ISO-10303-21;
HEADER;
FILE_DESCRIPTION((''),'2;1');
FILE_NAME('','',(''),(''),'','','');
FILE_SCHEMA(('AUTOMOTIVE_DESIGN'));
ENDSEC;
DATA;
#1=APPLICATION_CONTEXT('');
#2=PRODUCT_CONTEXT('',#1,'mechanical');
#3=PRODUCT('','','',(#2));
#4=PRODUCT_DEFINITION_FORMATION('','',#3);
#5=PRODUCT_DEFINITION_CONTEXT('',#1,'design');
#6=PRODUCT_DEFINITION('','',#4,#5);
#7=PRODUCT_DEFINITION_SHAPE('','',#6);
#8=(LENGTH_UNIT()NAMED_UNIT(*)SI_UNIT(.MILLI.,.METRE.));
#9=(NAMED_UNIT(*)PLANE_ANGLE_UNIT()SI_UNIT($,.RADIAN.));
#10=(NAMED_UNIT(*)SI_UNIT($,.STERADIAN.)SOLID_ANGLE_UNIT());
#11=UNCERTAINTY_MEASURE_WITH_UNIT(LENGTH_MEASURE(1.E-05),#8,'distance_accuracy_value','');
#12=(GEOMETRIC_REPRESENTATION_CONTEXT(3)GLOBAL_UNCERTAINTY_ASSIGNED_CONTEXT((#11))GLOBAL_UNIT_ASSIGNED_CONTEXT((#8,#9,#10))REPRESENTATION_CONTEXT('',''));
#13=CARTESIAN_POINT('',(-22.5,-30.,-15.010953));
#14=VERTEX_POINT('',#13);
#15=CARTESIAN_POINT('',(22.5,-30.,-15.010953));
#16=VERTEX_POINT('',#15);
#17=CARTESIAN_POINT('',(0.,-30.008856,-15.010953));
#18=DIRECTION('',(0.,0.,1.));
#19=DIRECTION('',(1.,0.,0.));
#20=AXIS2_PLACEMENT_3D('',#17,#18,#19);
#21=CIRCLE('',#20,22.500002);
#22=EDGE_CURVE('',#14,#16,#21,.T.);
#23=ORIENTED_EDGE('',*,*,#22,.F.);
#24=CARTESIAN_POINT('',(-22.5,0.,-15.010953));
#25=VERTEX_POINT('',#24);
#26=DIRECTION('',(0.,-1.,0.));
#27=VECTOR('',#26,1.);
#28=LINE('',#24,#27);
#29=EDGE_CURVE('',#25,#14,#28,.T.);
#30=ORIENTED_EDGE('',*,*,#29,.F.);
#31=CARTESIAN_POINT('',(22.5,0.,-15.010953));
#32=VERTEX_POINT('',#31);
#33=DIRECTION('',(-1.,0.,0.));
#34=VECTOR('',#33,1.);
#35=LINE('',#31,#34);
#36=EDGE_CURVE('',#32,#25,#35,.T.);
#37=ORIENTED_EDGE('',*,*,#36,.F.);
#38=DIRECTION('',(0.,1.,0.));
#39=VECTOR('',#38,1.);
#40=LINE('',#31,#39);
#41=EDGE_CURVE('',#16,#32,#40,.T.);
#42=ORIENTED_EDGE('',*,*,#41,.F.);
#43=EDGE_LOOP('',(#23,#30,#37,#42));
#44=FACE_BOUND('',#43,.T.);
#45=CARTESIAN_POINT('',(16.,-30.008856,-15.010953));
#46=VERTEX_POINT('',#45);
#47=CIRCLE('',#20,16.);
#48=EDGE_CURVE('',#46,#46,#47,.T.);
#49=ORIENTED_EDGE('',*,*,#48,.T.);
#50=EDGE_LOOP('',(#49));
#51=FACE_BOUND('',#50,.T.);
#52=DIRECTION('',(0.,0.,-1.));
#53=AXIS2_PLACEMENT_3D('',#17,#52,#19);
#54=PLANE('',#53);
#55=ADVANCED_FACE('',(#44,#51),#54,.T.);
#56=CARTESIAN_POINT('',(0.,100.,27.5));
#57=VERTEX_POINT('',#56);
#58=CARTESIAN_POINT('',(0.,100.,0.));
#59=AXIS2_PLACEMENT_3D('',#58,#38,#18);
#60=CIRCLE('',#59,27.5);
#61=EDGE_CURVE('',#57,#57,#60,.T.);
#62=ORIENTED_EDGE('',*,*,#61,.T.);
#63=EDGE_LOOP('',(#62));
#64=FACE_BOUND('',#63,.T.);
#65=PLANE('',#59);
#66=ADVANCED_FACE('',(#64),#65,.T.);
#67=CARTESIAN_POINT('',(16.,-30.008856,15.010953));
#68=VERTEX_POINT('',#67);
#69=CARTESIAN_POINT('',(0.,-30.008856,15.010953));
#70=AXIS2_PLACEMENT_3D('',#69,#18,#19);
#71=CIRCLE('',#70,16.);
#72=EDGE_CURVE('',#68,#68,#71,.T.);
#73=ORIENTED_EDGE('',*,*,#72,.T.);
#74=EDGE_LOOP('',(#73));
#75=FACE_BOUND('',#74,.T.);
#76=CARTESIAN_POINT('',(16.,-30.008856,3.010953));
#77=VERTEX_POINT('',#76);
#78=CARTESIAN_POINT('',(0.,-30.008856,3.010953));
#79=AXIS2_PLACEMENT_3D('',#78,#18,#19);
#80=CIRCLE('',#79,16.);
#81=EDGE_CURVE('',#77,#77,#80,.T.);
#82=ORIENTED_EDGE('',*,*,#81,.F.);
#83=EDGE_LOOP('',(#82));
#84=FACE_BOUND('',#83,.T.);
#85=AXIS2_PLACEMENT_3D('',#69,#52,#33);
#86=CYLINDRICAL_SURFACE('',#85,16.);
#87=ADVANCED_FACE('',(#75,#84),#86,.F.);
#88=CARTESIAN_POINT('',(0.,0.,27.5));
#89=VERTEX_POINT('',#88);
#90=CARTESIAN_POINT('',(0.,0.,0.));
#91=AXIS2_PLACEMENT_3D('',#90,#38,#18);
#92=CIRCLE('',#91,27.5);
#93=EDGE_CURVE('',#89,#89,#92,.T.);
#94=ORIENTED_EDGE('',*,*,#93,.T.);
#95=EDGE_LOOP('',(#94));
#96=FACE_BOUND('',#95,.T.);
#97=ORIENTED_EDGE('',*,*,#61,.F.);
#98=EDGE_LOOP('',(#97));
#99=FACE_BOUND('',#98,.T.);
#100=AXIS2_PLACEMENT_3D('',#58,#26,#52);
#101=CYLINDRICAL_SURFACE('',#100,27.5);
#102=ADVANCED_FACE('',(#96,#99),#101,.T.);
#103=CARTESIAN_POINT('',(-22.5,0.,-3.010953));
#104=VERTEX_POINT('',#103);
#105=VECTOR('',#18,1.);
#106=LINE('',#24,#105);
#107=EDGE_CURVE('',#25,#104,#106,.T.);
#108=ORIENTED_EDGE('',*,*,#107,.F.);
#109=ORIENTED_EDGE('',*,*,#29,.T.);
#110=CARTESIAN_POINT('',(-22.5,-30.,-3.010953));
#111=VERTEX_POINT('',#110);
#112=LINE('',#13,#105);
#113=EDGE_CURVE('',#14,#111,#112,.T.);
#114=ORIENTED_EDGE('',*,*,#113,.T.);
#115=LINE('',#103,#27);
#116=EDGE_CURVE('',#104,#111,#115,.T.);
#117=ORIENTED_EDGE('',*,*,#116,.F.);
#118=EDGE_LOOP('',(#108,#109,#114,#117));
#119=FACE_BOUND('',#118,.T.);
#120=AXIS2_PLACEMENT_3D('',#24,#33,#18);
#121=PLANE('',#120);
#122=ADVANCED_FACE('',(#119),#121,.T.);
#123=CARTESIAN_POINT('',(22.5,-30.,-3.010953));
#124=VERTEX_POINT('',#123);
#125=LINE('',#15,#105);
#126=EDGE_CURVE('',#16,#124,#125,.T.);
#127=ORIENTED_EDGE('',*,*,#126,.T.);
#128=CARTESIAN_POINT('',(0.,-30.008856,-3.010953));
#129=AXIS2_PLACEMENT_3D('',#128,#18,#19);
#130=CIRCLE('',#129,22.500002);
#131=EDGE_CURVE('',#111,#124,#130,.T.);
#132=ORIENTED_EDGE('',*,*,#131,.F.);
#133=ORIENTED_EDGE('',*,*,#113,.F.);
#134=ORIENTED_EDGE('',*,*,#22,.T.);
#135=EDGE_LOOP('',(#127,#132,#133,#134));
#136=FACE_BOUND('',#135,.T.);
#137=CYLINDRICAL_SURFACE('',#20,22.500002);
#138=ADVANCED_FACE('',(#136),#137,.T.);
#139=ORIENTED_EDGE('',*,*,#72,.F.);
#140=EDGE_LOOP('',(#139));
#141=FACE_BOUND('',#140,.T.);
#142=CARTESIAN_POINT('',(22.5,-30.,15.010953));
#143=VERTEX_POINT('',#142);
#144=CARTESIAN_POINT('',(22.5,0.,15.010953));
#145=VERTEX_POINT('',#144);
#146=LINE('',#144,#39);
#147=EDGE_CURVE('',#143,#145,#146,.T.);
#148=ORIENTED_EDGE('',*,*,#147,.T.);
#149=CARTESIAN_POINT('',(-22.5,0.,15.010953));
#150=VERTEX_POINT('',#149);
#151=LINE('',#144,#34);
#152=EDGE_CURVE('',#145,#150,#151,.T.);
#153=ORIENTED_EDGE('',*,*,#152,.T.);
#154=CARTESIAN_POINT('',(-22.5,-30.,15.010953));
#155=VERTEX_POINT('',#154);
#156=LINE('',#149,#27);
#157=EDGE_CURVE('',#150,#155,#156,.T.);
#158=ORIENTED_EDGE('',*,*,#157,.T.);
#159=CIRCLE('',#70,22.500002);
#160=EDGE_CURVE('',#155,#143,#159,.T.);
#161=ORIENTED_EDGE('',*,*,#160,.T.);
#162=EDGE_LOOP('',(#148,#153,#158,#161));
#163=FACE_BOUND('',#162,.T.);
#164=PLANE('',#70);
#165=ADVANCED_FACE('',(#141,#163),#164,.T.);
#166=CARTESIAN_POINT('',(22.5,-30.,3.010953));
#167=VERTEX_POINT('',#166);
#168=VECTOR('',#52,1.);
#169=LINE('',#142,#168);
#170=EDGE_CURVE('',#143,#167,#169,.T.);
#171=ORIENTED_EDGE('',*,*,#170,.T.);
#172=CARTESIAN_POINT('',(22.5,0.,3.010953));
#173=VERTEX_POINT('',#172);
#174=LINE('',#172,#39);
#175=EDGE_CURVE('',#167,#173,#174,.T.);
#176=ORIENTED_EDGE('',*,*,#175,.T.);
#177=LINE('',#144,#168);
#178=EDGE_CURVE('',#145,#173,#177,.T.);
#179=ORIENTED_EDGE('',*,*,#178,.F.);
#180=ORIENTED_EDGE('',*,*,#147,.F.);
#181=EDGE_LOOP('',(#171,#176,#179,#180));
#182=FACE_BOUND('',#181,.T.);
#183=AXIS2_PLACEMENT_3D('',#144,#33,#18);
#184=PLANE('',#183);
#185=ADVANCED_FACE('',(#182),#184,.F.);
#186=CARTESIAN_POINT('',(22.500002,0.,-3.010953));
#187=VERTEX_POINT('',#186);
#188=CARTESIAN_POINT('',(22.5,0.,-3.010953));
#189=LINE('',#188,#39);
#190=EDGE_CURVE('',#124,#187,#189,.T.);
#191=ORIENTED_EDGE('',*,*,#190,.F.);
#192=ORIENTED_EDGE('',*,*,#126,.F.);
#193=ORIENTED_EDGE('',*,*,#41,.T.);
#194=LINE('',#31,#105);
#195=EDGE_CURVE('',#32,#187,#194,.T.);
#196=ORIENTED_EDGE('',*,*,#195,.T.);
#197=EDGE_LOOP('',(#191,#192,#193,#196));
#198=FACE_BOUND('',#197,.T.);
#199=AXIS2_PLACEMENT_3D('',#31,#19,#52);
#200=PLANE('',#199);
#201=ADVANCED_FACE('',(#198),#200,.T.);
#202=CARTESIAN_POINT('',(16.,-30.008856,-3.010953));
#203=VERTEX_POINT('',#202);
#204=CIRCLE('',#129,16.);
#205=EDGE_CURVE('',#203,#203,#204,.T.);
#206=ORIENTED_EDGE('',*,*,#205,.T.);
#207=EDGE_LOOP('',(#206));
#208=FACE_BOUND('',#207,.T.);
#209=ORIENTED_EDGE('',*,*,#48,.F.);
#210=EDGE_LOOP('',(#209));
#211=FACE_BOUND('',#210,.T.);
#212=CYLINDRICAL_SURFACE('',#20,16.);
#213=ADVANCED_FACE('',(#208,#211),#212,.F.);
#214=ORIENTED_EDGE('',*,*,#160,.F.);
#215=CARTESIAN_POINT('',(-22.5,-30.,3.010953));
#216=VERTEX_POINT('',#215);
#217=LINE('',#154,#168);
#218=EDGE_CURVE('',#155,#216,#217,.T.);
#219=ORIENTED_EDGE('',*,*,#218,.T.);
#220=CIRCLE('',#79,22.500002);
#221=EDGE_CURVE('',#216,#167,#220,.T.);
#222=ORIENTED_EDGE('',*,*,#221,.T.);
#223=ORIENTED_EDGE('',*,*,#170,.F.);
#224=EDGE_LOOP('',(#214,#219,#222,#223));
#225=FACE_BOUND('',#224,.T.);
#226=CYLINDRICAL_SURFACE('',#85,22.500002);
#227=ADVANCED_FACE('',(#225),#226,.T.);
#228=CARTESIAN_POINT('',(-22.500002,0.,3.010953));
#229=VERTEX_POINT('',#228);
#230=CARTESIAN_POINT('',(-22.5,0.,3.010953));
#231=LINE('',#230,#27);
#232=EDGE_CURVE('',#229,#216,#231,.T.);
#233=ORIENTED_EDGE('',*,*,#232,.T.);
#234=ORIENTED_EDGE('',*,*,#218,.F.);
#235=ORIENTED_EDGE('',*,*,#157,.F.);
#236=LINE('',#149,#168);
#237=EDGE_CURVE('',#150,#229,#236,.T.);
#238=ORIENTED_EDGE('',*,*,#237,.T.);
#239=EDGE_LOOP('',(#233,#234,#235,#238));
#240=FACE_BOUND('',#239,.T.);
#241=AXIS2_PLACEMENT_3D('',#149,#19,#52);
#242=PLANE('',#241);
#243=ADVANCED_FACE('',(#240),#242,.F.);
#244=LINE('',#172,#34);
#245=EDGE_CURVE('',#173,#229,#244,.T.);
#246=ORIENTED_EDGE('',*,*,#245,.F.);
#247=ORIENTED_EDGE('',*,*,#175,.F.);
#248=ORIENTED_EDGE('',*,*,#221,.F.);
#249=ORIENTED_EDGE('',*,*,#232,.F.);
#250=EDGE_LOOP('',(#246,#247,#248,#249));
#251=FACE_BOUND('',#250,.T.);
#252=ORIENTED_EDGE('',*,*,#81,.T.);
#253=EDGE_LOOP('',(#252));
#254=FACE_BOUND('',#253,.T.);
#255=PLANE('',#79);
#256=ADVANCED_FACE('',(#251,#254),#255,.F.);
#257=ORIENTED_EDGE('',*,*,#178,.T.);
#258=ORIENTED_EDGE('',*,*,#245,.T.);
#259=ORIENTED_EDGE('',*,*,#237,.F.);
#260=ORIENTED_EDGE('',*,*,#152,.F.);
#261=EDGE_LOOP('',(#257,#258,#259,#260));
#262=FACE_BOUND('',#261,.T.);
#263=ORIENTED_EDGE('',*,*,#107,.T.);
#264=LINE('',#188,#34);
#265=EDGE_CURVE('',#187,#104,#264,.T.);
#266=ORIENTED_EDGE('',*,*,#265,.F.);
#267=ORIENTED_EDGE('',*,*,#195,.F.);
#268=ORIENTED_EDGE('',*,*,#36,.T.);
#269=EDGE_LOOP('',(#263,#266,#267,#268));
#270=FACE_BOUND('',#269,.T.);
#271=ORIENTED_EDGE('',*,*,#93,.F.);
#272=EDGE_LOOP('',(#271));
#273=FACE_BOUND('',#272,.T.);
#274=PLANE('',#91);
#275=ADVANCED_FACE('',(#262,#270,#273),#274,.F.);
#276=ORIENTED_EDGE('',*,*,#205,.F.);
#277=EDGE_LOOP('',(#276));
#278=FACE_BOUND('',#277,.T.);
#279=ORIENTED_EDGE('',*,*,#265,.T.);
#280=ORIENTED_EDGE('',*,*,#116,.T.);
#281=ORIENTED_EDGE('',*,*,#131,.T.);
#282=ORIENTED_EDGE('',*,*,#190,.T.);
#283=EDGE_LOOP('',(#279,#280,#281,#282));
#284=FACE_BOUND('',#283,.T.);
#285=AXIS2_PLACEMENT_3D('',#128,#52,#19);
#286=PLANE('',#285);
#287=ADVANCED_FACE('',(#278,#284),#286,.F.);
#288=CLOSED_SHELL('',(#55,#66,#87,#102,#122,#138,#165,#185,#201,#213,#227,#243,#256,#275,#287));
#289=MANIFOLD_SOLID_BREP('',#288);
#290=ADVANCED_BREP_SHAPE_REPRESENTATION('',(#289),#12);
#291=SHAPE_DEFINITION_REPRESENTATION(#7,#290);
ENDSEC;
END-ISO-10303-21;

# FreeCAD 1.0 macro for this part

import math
import FreeCAD as App
import Part
import Sketcher
Q = App.Units.Quantity

doc = App.newDocument("Part")
body = doc.addObject("PartDesign::Body", "Body")

# Sketch on XZ plane
sketch1 = body.newObject("Sketcher::SketchObject", "Sketch")
sketch1.AttachmentSupport = (doc.getObject("XZ_Plane"), [""])
sketch1.MapMode = "FlatFace"
sketch1.addGeometry(Part.Circle(App.Vector(0, 0, 0), App.Vector(0, 0, 1), 27.5), False)
sketch1.addConstraint(Sketcher.Constraint("Coincident", 0, 3, -1, 1))
sketch1.addConstraint(Sketcher.Constraint("Diameter", 0, Q("55 mm")))
pad1 = body.newObject("PartDesign::Pad", "Pad")
pad1.Profile = sketch1
pad1.Length = 100
pad1.Reversed = True

# Sketch on XY plane
sketch2 = body.newObject("Sketcher::SketchObject", "Sketch001")
sketch2.AttachmentSupport = (doc.getObject("XY_Plane"), [""])
sketch2.MapMode = "FlatFace"
sketch2.AttachmentOffset = App.Placement(App.Vector(0, 0, 3.010953), App.Rotation())
sketch2.addGeometry(Part.LineSegment(App.Vector(22.5, 0, 0), App.Vector(-22.5, 0, 0)), False)
sketch2.addGeometry(Part.LineSegment(App.Vector(-22.5, 0, 0), App.Vector(-22.5, -30, 0)), False)
sketch2.addGeometry(Part.ArcOfCircle(Part.Circle(App.Vector(0, -30.008856, 0), App.Vector(0, 0, 1), 22.500002), math.radians(179.977448), math.radians(360.022552)), False)
sketch2.addGeometry(Part.LineSegment(App.Vector(22.5, -30, 0), App.Vector(22.5, 0, 0)), False)
sketch2.addGeometry(Part.Circle(App.Vector(0, -30.008856, 0), App.Vector(0, 0, 1), 16), False)
sketch2.addConstraint(Sketcher.Constraint("Coincident", 0, 2, 1, 1))
sketch2.addConstraint(Sketcher.Constraint("Coincident", 1, 2, 2, 1))
sketch2.addConstraint(Sketcher.Constraint("Coincident", 2, 2, 3, 1))
sketch2.addConstraint(Sketcher.Constraint("Coincident", 3, 2, 0, 1))
sketch2.addConstraint(Sketcher.Constraint("Horizontal", 0))
sketch2.addConstraint(Sketcher.Constraint("Vertical", 1))
sketch2.addConstraint(Sketcher.Constraint("Vertical", 3))
sketch2.addConstraint(Sketcher.Constraint("Coincident", 4, 3, 2, 3))
sketch2.addConstraint(Sketcher.Constraint("Symmetric", 0, 2, 3, 2, -1, 1))
sketch2.addConstraint(Sketcher.Constraint("Horizontal", 1, 2, 2, 2))
sketch2.addConstraint(Sketcher.Constraint("Diameter", 4, Q("32 mm")))
sketch2.addConstraint(Sketcher.Constraint("Radius", 2, Q("22.500002 mm")))
sketch2.addConstraint(Sketcher.Constraint("DistanceY", 1, 2, 1, 1, Q("30 mm")))
sketch2.addConstraint(Sketcher.Constraint("DistanceY", 2, 3, -1, 1, Q("30.008856 mm")))
pad2 = body.newObject("PartDesign::Pad", "Pad001")
pad2.Profile = sketch2
pad2.Length = 12
doc.recompute()

mirrored = body.newObject("PartDesign::Mirrored", "Mirrored")
mirrored.Originals = [pad2]
mirrored.MirrorPlane = (doc.getObject("XY_Plane"), [""])
body.Tip = mirrored

doc.recompute()
